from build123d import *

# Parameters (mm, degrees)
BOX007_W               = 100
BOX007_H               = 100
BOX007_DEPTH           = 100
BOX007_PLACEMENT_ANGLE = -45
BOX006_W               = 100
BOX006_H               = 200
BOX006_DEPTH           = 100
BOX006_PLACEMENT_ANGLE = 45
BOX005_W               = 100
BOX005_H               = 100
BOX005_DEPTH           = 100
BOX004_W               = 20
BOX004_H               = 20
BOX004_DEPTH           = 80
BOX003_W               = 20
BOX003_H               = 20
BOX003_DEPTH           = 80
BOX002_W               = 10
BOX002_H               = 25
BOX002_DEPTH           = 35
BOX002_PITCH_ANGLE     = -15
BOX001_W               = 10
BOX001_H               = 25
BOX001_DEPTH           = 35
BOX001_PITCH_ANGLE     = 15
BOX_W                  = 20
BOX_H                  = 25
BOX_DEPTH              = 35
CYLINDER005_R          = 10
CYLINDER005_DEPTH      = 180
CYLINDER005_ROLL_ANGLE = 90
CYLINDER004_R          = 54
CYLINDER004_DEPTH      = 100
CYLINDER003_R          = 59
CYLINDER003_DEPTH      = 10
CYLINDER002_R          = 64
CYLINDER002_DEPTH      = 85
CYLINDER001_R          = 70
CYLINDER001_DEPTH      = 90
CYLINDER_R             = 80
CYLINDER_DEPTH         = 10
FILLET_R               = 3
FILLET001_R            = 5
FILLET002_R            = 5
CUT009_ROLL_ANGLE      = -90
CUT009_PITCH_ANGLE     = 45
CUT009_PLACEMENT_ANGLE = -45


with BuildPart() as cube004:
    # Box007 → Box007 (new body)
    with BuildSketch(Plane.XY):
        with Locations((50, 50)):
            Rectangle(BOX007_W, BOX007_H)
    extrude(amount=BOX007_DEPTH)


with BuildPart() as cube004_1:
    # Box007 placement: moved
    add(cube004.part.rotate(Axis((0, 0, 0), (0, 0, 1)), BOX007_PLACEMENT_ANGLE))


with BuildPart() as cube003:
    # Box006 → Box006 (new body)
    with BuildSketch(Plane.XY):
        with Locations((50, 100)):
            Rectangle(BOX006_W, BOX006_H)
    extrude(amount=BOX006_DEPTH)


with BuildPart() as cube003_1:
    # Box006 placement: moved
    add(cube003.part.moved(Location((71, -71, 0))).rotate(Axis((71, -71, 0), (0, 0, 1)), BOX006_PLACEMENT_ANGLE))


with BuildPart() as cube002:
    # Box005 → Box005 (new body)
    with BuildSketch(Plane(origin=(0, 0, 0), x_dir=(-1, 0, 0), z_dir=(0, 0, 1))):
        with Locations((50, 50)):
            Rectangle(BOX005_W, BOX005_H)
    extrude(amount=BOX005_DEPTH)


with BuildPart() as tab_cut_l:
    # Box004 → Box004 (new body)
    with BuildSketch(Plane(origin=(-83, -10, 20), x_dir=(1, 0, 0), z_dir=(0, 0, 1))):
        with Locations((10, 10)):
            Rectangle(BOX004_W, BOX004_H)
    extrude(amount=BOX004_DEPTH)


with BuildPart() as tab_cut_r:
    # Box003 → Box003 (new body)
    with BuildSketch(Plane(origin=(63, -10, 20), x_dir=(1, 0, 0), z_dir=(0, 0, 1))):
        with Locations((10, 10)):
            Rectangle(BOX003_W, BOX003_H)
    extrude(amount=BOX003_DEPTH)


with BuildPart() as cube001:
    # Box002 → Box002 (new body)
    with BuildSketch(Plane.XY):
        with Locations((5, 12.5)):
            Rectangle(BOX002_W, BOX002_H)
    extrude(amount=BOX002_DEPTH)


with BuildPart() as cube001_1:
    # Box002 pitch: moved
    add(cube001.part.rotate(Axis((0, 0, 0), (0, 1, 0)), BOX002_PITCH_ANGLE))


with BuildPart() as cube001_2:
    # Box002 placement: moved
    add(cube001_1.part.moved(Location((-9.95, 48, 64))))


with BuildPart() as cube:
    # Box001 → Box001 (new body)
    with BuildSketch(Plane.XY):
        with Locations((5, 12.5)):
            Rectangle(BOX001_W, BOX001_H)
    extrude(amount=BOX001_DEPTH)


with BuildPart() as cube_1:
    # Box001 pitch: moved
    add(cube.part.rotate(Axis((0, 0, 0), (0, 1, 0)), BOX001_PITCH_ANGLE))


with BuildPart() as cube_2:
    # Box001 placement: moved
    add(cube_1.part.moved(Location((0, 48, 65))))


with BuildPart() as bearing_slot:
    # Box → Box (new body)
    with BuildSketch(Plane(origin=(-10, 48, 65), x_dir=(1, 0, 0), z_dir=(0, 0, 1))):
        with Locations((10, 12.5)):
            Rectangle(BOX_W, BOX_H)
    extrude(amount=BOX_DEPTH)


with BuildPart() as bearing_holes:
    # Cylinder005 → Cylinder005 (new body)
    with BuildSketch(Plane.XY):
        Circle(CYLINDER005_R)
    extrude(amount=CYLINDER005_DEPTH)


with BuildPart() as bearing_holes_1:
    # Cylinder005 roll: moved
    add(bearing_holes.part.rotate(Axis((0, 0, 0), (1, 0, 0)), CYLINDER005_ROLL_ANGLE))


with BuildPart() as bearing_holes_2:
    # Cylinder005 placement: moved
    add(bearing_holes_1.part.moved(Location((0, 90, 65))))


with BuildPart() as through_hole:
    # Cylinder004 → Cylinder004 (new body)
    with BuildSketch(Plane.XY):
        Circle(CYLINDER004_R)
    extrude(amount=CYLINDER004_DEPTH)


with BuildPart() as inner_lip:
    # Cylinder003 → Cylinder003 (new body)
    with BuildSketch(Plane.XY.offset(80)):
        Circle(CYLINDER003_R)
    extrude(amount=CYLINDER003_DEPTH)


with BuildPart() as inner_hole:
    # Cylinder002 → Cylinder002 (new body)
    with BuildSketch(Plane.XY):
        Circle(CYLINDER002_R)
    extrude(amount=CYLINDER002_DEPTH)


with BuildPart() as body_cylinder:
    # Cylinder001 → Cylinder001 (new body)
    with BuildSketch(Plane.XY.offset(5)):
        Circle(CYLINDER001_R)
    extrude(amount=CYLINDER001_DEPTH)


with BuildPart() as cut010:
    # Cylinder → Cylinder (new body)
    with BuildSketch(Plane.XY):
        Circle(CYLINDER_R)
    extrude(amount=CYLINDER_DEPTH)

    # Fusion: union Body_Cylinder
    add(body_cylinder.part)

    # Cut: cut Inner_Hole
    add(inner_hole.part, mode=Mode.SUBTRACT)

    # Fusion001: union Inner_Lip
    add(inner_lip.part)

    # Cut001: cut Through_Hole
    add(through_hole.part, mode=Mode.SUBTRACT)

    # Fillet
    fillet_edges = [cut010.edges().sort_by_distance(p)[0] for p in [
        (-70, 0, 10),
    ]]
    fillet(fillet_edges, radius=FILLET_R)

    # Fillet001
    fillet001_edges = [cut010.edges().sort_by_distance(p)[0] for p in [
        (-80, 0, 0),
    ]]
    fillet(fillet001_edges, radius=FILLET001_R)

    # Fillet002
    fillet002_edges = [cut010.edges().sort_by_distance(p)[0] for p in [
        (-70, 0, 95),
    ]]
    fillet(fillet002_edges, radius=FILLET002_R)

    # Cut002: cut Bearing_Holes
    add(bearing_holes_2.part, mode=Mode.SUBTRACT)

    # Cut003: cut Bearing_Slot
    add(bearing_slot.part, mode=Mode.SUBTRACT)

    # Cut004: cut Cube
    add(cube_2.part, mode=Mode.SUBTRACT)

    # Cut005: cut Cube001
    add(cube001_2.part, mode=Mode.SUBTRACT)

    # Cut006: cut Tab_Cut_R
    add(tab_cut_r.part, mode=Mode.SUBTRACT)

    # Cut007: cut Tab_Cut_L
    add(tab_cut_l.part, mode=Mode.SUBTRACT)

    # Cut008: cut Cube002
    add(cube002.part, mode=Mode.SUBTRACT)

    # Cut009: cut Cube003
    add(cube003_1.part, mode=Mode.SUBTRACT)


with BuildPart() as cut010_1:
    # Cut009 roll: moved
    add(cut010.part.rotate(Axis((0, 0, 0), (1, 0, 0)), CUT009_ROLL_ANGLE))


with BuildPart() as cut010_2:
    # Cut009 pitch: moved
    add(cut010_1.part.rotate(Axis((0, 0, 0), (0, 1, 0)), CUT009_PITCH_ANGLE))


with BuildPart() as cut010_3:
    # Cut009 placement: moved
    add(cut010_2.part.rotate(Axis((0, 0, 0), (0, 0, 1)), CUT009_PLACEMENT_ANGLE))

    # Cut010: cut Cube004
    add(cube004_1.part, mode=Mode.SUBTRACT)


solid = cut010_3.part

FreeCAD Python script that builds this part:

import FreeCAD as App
import Part
import Sketcher
from FreeCAD import Vector


def edges_at(feature, points):
    """Names of the edges that pass closest to the given points."""
    edges = feature.Shape.Edges
    near = lambda p: min(range(len(edges)), key=lambda i: edges[i].distToShape(Part.Vertex(*p))[0])
    return sorted({f"Edge{near(p) + 1}" for p in points})


def add_polygon(sketch, points):
    """Adds a closed chain of lines whose ends are joined by coincident constraints."""
    first, n = sketch.GeometryCount, len(points)
    for a, b in zip(points, points[1:] + points[:1]):
        sketch.addGeometry(Part.LineSegment(App.Vector(*a, 0), App.Vector(*b, 0)), False)
    for i in range(n):
        sketch.addConstraint(Sketcher.Constraint("Coincident", first + i, 2, first + (i + 1) % n, 1))

doc = App.newDocument("Part")
body = doc.addObject("PartDesign::Body", "Body")

# Sketch on XY plane
sketch1 = doc.addObject("Sketcher::SketchObject", "Sketch")
body.addObject(sketch1)
sketch1.AttachmentSupport = (doc.XY_Plane, [""])
sketch1.MapMode = "FlatFace"
add_polygon(sketch1, [(0, 100), (0, 0), (100, 0), (100, 100)])  # lines 0-3
sketch1.addConstraint([
    Sketcher.Constraint("Vertical", 0),
    Sketcher.Constraint("Horizontal", 1),
    Sketcher.Constraint("Vertical", 2),
    Sketcher.Constraint("Horizontal", 3),
    Sketcher.Constraint("Coincident", 0, 2, -1, 1),
    Sketcher.Constraint("Equal", 3, 0),
    Sketcher.Constraint("DistanceX", 1, 1, 1, 2, 100.0),
])
pad1 = doc.addObject("PartDesign::Pad", "Pad")
body.addObject(pad1)
pad1.Profile = sketch1
pad1.Length = 100
body2 = doc.addObject("PartDesign::Body", "Body001")
doc.recompute()

body.Placement = App.Placement(Vector(0, 0, 0), App.Rotation(Vector(0, 0, 1), 315))
boolean = doc.addObject("PartDesign::Boolean", "Boolean")
body2.addObject(boolean)
boolean.Type = "Fuse"
boolean.addObjects([body])
body3 = doc.addObject("PartDesign::Body", "Body002")

# Sketch on XY plane
sketch2 = doc.addObject("Sketcher::SketchObject", "Sketch001")
body3.addObject(sketch2)
sketch2.AttachmentSupport = (doc.getObject("XY_Plane002"), [""])
sketch2.MapMode = "FlatFace"
add_polygon(sketch2, [(0, 200), (0, 0), (100, 0), (100, 200)])  # lines 0-3
sketch2.addConstraint([
    Sketcher.Constraint("Vertical", 0),
    Sketcher.Constraint("Horizontal", 1),
    Sketcher.Constraint("Vertical", 2),
    Sketcher.Constraint("Horizontal", 3),
    Sketcher.Constraint("Coincident", 0, 2, -1, 1),
    Sketcher.Constraint("DistanceX", 1, 1, 1, 2, 100.0),
    Sketcher.Constraint("DistanceY", 0, 2, 0, 1, 200.0),
])
pad2 = doc.addObject("PartDesign::Pad", "Pad001")
body3.addObject(pad2)
pad2.Profile = sketch2
pad2.Length = 100
body4 = doc.addObject("PartDesign::Body", "Body003")
doc.recompute()

body3.Placement = App.Placement(Vector(71, -71, 0), App.Rotation(Vector(0, 0, 1), 45))
boolean2 = doc.addObject("PartDesign::Boolean", "Boolean001")
body4.addObject(boolean2)
boolean2.Type = "Fuse"
boolean2.addObjects([body3])
body5 = doc.addObject("PartDesign::Body", "Body004")

# Sketch on XY plane
sketch3 = doc.addObject("Sketcher::SketchObject", "Sketch002")
body5.addObject(sketch3)
sketch3.AttachmentSupport = (doc.getObject("XY_Plane004"), [""])
sketch3.MapMode = "FlatFace"
add_polygon(sketch3, [(0, -100), (0, 0), (-100, 0), (-100, -100)])  # lines 0-3
sketch3.addConstraint([
    Sketcher.Constraint("Vertical", 0),
    Sketcher.Constraint("Horizontal", 1),
    Sketcher.Constraint("Vertical", 2),
    Sketcher.Constraint("Horizontal", 3),
    Sketcher.Constraint("Coincident", 0, 2, -1, 1),
    Sketcher.Constraint("Equal", 3, 0),
    Sketcher.Constraint("DistanceX", 1, 2, 1, 1, 100.0),
])
pad3 = doc.addObject("PartDesign::Pad", "Pad002")
body5.addObject(pad3)
pad3.Profile = sketch3
pad3.Length = 100
body6 = doc.addObject("PartDesign::Body", "Body005")

# Sketch on XY plane
sketch4 = doc.addObject("Sketcher::SketchObject", "Sketch003")
body6.addObject(sketch4)
sketch4.AttachmentSupport = (doc.getObject("XY_Plane005"), [""])
sketch4.MapMode = "FlatFace"
sketch4.AttachmentOffset = App.Placement(Vector(0, 0, 20), App.Rotation())
add_polygon(sketch4, [(-83, 10), (-83, -10), (-63, -10), (-63, 10)])  # lines 0-3
sketch4.addConstraint([
    Sketcher.Constraint("Vertical", 0),
    Sketcher.Constraint("Horizontal", 1),
    Sketcher.Constraint("Vertical", 2),
    Sketcher.Constraint("Horizontal", 3),
    Sketcher.Constraint("Equal", 3, 0),
    Sketcher.Constraint("DistanceX", 1, 1, 1, 2, 20.0),
    Sketcher.Constraint("DistanceX", 0, 2, -1, 1, 83.0),
    Sketcher.Constraint("DistanceY", 0, 2, -1, 1, 10.0),
])
pad4 = doc.addObject("PartDesign::Pad", "Pad003")
body6.addObject(pad4)
pad4.Profile = sketch4
pad4.Length = 80
body7 = doc.addObject("PartDesign::Body", "Body006")

# Sketch on XY plane
sketch5 = doc.addObject("Sketcher::SketchObject", "Sketch004")
body7.addObject(sketch5)
sketch5.AttachmentSupport = (doc.getObject("XY_Plane006"), [""])
sketch5.MapMode = "FlatFace"
sketch5.AttachmentOffset = App.Placement(Vector(0, 0, 20), App.Rotation())
add_polygon(sketch5, [(63, 10), (63, -10), (83, -10), (83, 10)])  # lines 0-3
sketch5.addConstraint([
    Sketcher.Constraint("Vertical", 0),
    Sketcher.Constraint("Horizontal", 1),
    Sketcher.Constraint("Vertical", 2),
    Sketcher.Constraint("Horizontal", 3),
    Sketcher.Constraint("Equal", 3, 0),
    Sketcher.Constraint("DistanceX", 1, 1, 1, 2, 20.0),
    Sketcher.Constraint("DistanceX", -1, 1, 0, 2, 63.0),
    Sketcher.Constraint("DistanceY", 0, 2, -1, 1, 10.0),
])
pad5 = doc.addObject("PartDesign::Pad", "Pad004")
body7.addObject(pad5)
pad5.Profile = sketch5
pad5.Length = 80
body8 = doc.addObject("PartDesign::Body", "Body007")

# Sketch on XY plane
sketch6 = doc.addObject("Sketcher::SketchObject", "Sketch005")
body8.addObject(sketch6)
sketch6.AttachmentSupport = (doc.getObject("XY_Plane007"), [""])
sketch6.MapMode = "FlatFace"
add_polygon(sketch6, [(0, 25), (0, 0), (10, 0), (10, 25)])  # lines 0-3
sketch6.addConstraint([
    Sketcher.Constraint("Vertical", 0),
    Sketcher.Constraint("Horizontal", 1),
    Sketcher.Constraint("Vertical", 2),
    Sketcher.Constraint("Horizontal", 3),
    Sketcher.Constraint("Coincident", 0, 2, -1, 1),
    Sketcher.Constraint("DistanceX", 1, 1, 1, 2, 10.0),
    Sketcher.Constraint("DistanceY", 0, 2, 0, 1, 25.0),
])
pad6 = doc.addObject("PartDesign::Pad", "Pad005")
body8.addObject(pad6)
pad6.Profile = sketch6
pad6.Length = 35
body9 = doc.addObject("PartDesign::Body", "Body008")
doc.recompute()

body8.Placement = App.Placement(Vector(0, 0, 0), App.Rotation(Vector(0, 1, 0), 345))
boolean3 = doc.addObject("PartDesign::Boolean", "Boolean002")
body9.addObject(boolean3)
boolean3.Type = "Fuse"
boolean3.addObjects([body8])
body10 = doc.addObject("PartDesign::Body", "Body009")
doc.recompute()

body9.Placement = App.Placement(Vector(-9.95, 48, 64), App.Rotation(Vector(0, 0, 1), 0))
boolean4 = doc.addObject("PartDesign::Boolean", "Boolean003")
body10.addObject(boolean4)
boolean4.Type = "Fuse"
boolean4.addObjects([body9])
body11 = doc.addObject("PartDesign::Body", "Body010")

# Sketch on XY plane
sketch7 = doc.addObject("Sketcher::SketchObject", "Sketch006")
body11.addObject(sketch7)
sketch7.AttachmentSupport = (doc.getObject("XY_Plane010"), [""])
sketch7.MapMode = "FlatFace"
add_polygon(sketch7, [(0, 25), (0, 0), (10, 0), (10, 25)])  # lines 0-3
sketch7.addConstraint([
    Sketcher.Constraint("Vertical", 0),
    Sketcher.Constraint("Horizontal", 1),
    Sketcher.Constraint("Vertical", 2),
    Sketcher.Constraint("Horizontal", 3),
    Sketcher.Constraint("Coincident", 0, 2, -1, 1),
    Sketcher.Constraint("DistanceX", 1, 1, 1, 2, 10.0),
    Sketcher.Constraint("DistanceY", 0, 2, 0, 1, 25.0),
])
pad7 = doc.addObject("PartDesign::Pad", "Pad006")
body11.addObject(pad7)
pad7.Profile = sketch7
pad7.Length = 35
body12 = doc.addObject("PartDesign::Body", "Body011")
doc.recompute()

body11.Placement = App.Placement(Vector(0, 0, 0), App.Rotation(Vector(0, 1, 0), 15))
boolean5 = doc.addObject("PartDesign::Boolean", "Boolean004")
body12.addObject(boolean5)
boolean5.Type = "Fuse"
boolean5.addObjects([body11])
body13 = doc.addObject("PartDesign::Body", "Body012")
doc.recompute()

body12.Placement = App.Placement(Vector(0, 48, 65), App.Rotation(Vector(0, 0, 1), 0))
boolean6 = doc.addObject("PartDesign::Boolean", "Boolean005")
body13.addObject(boolean6)
boolean6.Type = "Fuse"
boolean6.addObjects([body12])
body14 = doc.addObject("PartDesign::Body", "Body013")

# Sketch on XY plane
sketch8 = doc.addObject("Sketcher::SketchObject", "Sketch007")
body14.addObject(sketch8)
sketch8.AttachmentSupport = (doc.getObject("XY_Plane013"), [""])
sketch8.MapMode = "FlatFace"
sketch8.AttachmentOffset = App.Placement(Vector(0, 0, 65), App.Rotation())
add_polygon(sketch8, [(-10, 73), (-10, 48), (10, 48), (10, 73)])  # lines 0-3
sketch8.addConstraint([
    Sketcher.Constraint("Vertical", 0),
    Sketcher.Constraint("Horizontal", 1),
    Sketcher.Constraint("Vertical", 2),
    Sketcher.Constraint("Horizontal", 3),
    Sketcher.Constraint("DistanceX", 1, 1, 1, 2, 20.0),
    Sketcher.Constraint("DistanceY", 0, 2, 0, 1, 25.0),
    Sketcher.Constraint("DistanceX", 0, 2, -1, 1, 10.0),
    Sketcher.Constraint("DistanceY", -1, 1, 0, 2, 48.0),
])
pad8 = doc.addObject("PartDesign::Pad", "Pad007")
body14.addObject(pad8)
pad8.Profile = sketch8
pad8.Length = 35
body15 = doc.addObject("PartDesign::Body", "Body014")

# Sketch on XY plane
sketch9 = doc.addObject("Sketcher::SketchObject", "Sketch008")
body15.addObject(sketch9)
sketch9.AttachmentSupport = (doc.getObject("XY_Plane014"), [""])
sketch9.MapMode = "FlatFace"
sketch9.addGeometry(Part.Circle(Vector(0, 0, 0), Vector(0, 0, 1), 10), False)
sketch9.addConstraint([
    Sketcher.Constraint("Coincident", 0, 3, -1, 1),
    Sketcher.Constraint("Diameter", 0, 20.0),
])
pad9 = doc.addObject("PartDesign::Pad", "Pad008")
body15.addObject(pad9)
pad9.Profile = sketch9
pad9.Length = 180
body16 = doc.addObject("PartDesign::Body", "Body015")
doc.recompute()

body15.Placement = App.Placement(Vector(0, 0, 0), App.Rotation(Vector(1, 0, 0), 90))
boolean7 = doc.addObject("PartDesign::Boolean", "Boolean006")
body16.addObject(boolean7)
boolean7.Type = "Fuse"
boolean7.addObjects([body15])
body17 = doc.addObject("PartDesign::Body", "Body016")
doc.recompute()

body16.Placement = App.Placement(Vector(0, 90, 65), App.Rotation(Vector(0, 0, 1), 0))
boolean8 = doc.addObject("PartDesign::Boolean", "Boolean007")
body17.addObject(boolean8)
boolean8.Type = "Fuse"
boolean8.addObjects([body16])
body18 = doc.addObject("PartDesign::Body", "Body017")

# Sketch on XY plane
sketch10 = doc.addObject("Sketcher::SketchObject", "Sketch009")
body18.addObject(sketch10)
sketch10.AttachmentSupport = (doc.getObject("XY_Plane017"), [""])
sketch10.MapMode = "FlatFace"
sketch10.addGeometry(Part.Circle(Vector(0, 0, 0), Vector(0, 0, 1), 54), False)
sketch10.addConstraint([
    Sketcher.Constraint("Coincident", 0, 3, -1, 1),
    Sketcher.Constraint("Diameter", 0, 108.0),
])
pad10 = doc.addObject("PartDesign::Pad", "Pad009")
body18.addObject(pad10)
pad10.Profile = sketch10
pad10.Length = 100
body19 = doc.addObject("PartDesign::Body", "Body018")

# Sketch on XY plane
sketch11 = doc.addObject("Sketcher::SketchObject", "Sketch010")
body19.addObject(sketch11)
sketch11.AttachmentSupport = (doc.getObject("XY_Plane018"), [""])
sketch11.MapMode = "FlatFace"
sketch11.AttachmentOffset = App.Placement(Vector(0, 0, 80), App.Rotation())
sketch11.addGeometry(Part.Circle(Vector(0, 0, 0), Vector(0, 0, 1), 59), False)
sketch11.addConstraint([
    Sketcher.Constraint("Coincident", 0, 3, -1, 1),
    Sketcher.Constraint("Diameter", 0, 118.0),
])
pad11 = doc.addObject("PartDesign::Pad", "Pad010")
body19.addObject(pad11)
pad11.Profile = sketch11
pad11.Length = 10
body20 = doc.addObject("PartDesign::Body", "Body019")

# Sketch on XY plane
sketch12 = doc.addObject("Sketcher::SketchObject", "Sketch011")
body20.addObject(sketch12)
sketch12.AttachmentSupport = (doc.getObject("XY_Plane019"), [""])
sketch12.MapMode = "FlatFace"
sketch12.addGeometry(Part.Circle(Vector(0, 0, 0), Vector(0, 0, 1), 64), False)
sketch12.addConstraint([
    Sketcher.Constraint("Coincident", 0, 3, -1, 1),
    Sketcher.Constraint("Diameter", 0, 128.0),
])
pad12 = doc.addObject("PartDesign::Pad", "Pad011")
body20.addObject(pad12)
pad12.Profile = sketch12
pad12.Length = 85
body21 = doc.addObject("PartDesign::Body", "Body020")

# Sketch on XY plane
sketch13 = doc.addObject("Sketcher::SketchObject", "Sketch012")
body21.addObject(sketch13)
sketch13.AttachmentSupport = (doc.getObject("XY_Plane020"), [""])
sketch13.MapMode = "FlatFace"
sketch13.AttachmentOffset = App.Placement(Vector(0, 0, 5), App.Rotation())
sketch13.addGeometry(Part.Circle(Vector(0, 0, 0), Vector(0, 0, 1), 70), False)
sketch13.addConstraint([
    Sketcher.Constraint("Coincident", 0, 3, -1, 1),
    Sketcher.Constraint("Diameter", 0, 140.0),
])
pad13 = doc.addObject("PartDesign::Pad", "Pad012")
body21.addObject(pad13)
pad13.Profile = sketch13
pad13.Length = 90
body22 = doc.addObject("PartDesign::Body", "Body021")
body22.AllowCompound = True

# Sketch on XY plane
sketch14 = doc.addObject("Sketcher::SketchObject", "Sketch013")
body22.addObject(sketch14)
sketch14.AttachmentSupport = (doc.getObject("XY_Plane021"), [""])
sketch14.MapMode = "FlatFace"
sketch14.addGeometry(Part.Circle(Vector(0, 0, 0), Vector(0, 0, 1), 80), False)
sketch14.addConstraint([
    Sketcher.Constraint("Coincident", 0, 3, -1, 1),
    Sketcher.Constraint("Diameter", 0, 160.0),
])
pad14 = doc.addObject("PartDesign::Pad", "Pad013")
body22.addObject(pad14)
pad14.Profile = sketch14
pad14.Length = 10
doc.recompute()

boolean9 = doc.addObject("PartDesign::Boolean", "Boolean008")
body22.addObject(boolean9)
boolean9.Type = "Fuse"
boolean9.addObjects([body21])
doc.recompute()

boolean10 = doc.addObject("PartDesign::Boolean", "Boolean009")
body22.addObject(boolean10)
boolean10.Type = "Cut"
boolean10.addObjects([body20])
doc.recompute()

boolean11 = doc.addObject("PartDesign::Boolean", "Boolean010")
body22.addObject(boolean11)
boolean11.Type = "Fuse"
boolean11.addObjects([body19])
doc.recompute()

boolean12 = doc.addObject("PartDesign::Boolean", "Boolean011")
body22.addObject(boolean12)
boolean12.Type = "Cut"
boolean12.addObjects([body18])
doc.recompute()

fillet = doc.addObject("PartDesign::Fillet", "Fillet")
body22.addObject(fillet)
fillet.Base = (boolean12, edges_at(boolean12, [(-70, 0, 10)]))
fillet.Radius = 3
doc.recompute()

fillet2 = doc.addObject("PartDesign::Fillet", "Fillet001")
body22.addObject(fillet2)
fillet2.Base = (fillet, edges_at(fillet, [(-80, 0, 0)]))
fillet2.Radius = 5
doc.recompute()

fillet3 = doc.addObject("PartDesign::Fillet", "Fillet002")
body22.addObject(fillet3)
fillet3.Base = (fillet2, edges_at(fillet2, [(-70, 0, 95)]))
fillet3.Radius = 5
doc.recompute()

boolean13 = doc.addObject("PartDesign::Boolean", "Boolean012")
body22.addObject(boolean13)
boolean13.Type = "Cut"
boolean13.addObjects([body17])
doc.recompute()

boolean14 = doc.addObject("PartDesign::Boolean", "Boolean013")
body22.addObject(boolean14)
boolean14.Type = "Cut"
boolean14.addObjects([body14])
doc.recompute()

boolean15 = doc.addObject("PartDesign::Boolean", "Boolean014")
body22.addObject(boolean15)
boolean15.Type = "Cut"
boolean15.addObjects([body13])
doc.recompute()

boolean16 = doc.addObject("PartDesign::Boolean", "Boolean015")
body22.addObject(boolean16)
boolean16.Type = "Cut"
boolean16.addObjects([body10])
doc.recompute()

boolean17 = doc.addObject("PartDesign::Boolean", "Boolean016")
body22.addObject(boolean17)
boolean17.Type = "Cut"
boolean17.addObjects([body7])
doc.recompute()

boolean18 = doc.addObject("PartDesign::Boolean", "Boolean017")
body22.addObject(boolean18)
boolean18.Type = "Cut"
boolean18.addObjects([body6])
doc.recompute()

boolean19 = doc.addObject("PartDesign::Boolean", "Boolean018")
body22.addObject(boolean19)
boolean19.Type = "Cut"
boolean19.addObjects([body5])
doc.recompute()

boolean20 = doc.addObject("PartDesign::Boolean", "Boolean019")
body22.addObject(boolean20)
boolean20.Type = "Cut"
boolean20.addObjects([body4])
body23 = doc.addObject("PartDesign::Body", "Body022")
body23.AllowCompound = True
doc.recompute()

body22.Placement = App.Placement(Vector(0, 0, 0), App.Rotation(Vector(1, 0, 0), 270))
boolean21 = doc.addObject("PartDesign::Boolean", "Boolean020")
body23.addObject(boolean21)
boolean21.Type = "Fuse"
boolean21.addObjects([body22])
body24 = doc.addObject("PartDesign::Body", "Body023")
body24.AllowCompound = True
doc.recompute()

body23.Placement = App.Placement(Vector(0, 0, 0), App.Rotation(Vector(0, 1, 0), 45))
boolean22 = doc.addObject("PartDesign::Boolean", "Boolean021")
body24.addObject(boolean22)
boolean22.Type = "Fuse"
boolean22.addObjects([body23])
body25 = doc.addObject("PartDesign::Body", "Body024")
body25.AllowCompound = True
doc.recompute()

body24.Placement = App.Placement(Vector(0, 0, 0), App.Rotation(Vector(0, 0, 1), 315))
boolean23 = doc.addObject("PartDesign::Boolean", "Boolean022")
body25.addObject(boolean23)
boolean23.Type = "Fuse"
boolean23.addObjects([body24])
doc.recompute()

boolean24 = doc.addObject("PartDesign::Boolean", "Boolean023")
body25.addObject(boolean24)
boolean24.Type = "Cut"
boolean24.addObjects([body2])

doc.recompute()
